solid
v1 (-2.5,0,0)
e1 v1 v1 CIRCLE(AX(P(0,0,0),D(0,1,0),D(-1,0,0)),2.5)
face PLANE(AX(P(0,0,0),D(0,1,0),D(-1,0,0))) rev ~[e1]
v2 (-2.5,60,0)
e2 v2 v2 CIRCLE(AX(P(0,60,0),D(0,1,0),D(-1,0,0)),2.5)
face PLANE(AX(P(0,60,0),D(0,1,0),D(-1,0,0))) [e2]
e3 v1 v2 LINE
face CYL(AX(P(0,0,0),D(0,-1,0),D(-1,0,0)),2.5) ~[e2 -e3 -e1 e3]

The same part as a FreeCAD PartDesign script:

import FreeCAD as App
import Part
import Sketcher

V = App.Vector
Q = App.Units.Quantity

doc = App.newDocument("Part")
body = doc.addObject("PartDesign::Body", "Body")

# Sketch on XZ plane
sketch1 = body.newObject("Sketcher::SketchObject", "Sketch")
sketch1.AttachmentSupport = (doc.getObject("XZ_Plane"), [""])
sketch1.MapMode = "FlatFace"
sketch1.addGeometry(Part.Circle(V(0, 0, 0), V(0, 0, 1), 2.5), False)
sketch1.addConstraint(Sketcher.Constraint("Coincident", 0, 3, -1, 1))
sketch1.addConstraint(Sketcher.Constraint("Diameter", 0, Q("5 mm")))
pad1 = body.newObject("PartDesign::Pad", "Pad")
pad1.Profile = sketch1
pad1.Length = 60
pad1.Reversed = True

doc.recompute()
